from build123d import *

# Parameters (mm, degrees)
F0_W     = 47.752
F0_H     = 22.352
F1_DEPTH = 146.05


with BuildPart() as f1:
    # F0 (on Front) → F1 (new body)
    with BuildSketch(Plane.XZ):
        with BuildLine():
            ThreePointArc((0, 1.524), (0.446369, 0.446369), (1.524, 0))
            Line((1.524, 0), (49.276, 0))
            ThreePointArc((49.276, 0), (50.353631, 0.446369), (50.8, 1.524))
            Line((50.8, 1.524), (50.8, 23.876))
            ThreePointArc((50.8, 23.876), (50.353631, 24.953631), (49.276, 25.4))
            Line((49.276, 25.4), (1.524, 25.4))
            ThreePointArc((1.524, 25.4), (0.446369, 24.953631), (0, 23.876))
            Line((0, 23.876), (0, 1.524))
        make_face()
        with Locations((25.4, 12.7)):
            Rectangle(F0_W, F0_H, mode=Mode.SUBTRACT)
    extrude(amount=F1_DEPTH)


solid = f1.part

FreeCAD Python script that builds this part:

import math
import FreeCAD as App
import Part
import Sketcher

V = App.Vector
Q = App.Units.Quantity

doc = App.newDocument("Part")
body = doc.addObject("PartDesign::Body", "Body")

# Sketch on XZ plane
sketch1 = doc.addObject("Sketcher::SketchObject", "Sketch")
body.addObject(sketch1)
sketch1.AttachmentSupport = (doc.XZ_Plane, [""])
sketch1.MapMode = "FlatFace"
sketch1.addGeometry([
    Part.ArcOfCircle(Part.Circle(V(1.523999, 1.523999, 0), V(0, 0, 1), 1.523999), math.radians(179.999966), math.radians(270.000034)),  # 0
    Part.LineSegment(V(1.524, 0, 0), V(49.276, 0, 0)),  # 1
    Part.ArcOfCircle(Part.Circle(V(49.276001, 1.523999, 0), V(0, 0, 1), 1.523999), math.radians(-90.000034), math.radians(0.000034)),  # 2
    Part.LineSegment(V(50.8, 1.524, 0), V(50.8, 23.876, 0)),  # 3
    Part.ArcOfCircle(Part.Circle(V(49.276001, 23.876001, 0), V(0, 0, 1), 1.523999), math.radians(-0.000034), math.radians(90.000034)),  # 4
    Part.LineSegment(V(49.276, 25.4, 0), V(1.524, 25.4, 0)),  # 5
    Part.ArcOfCircle(Part.Circle(V(1.523999, 23.876001, 0), V(0, 0, 1), 1.523999), math.radians(89.999966), math.radians(180.000034)),  # 6
    Part.LineSegment(V(0, 23.876, 0), V(0, 1.524, 0)),  # 7
    Part.LineSegment(V(49.276, 1.524, 0), V(1.524, 1.524, 0)),  # 8
    Part.LineSegment(V(1.524, 1.524, 0), V(1.524, 23.876, 0)),  # 9
    Part.LineSegment(V(1.524, 23.876, 0), V(49.276, 23.876, 0)),  # 10
    Part.LineSegment(V(49.276, 23.876, 0), V(49.276, 1.524, 0)),  # 11
], False)
sketch1.addConstraint([
    Sketcher.Constraint("Tangent", 0, 2, 1, 1),
    Sketcher.Constraint("Tangent", 1, 2, 2, 1),
    Sketcher.Constraint("Tangent", 2, 2, 3, 1),
    Sketcher.Constraint("Tangent", 3, 2, 4, 1),
    Sketcher.Constraint("Tangent", 4, 2, 5, 1),
    Sketcher.Constraint("Tangent", 5, 2, 6, 1),
    Sketcher.Constraint("Tangent", 6, 2, 7, 1),
    Sketcher.Constraint("Tangent", 7, 2, 0, 1),
    Sketcher.Constraint("Coincident", 8, 2, 9, 1),
    Sketcher.Constraint("Coincident", 9, 2, 10, 1),
    Sketcher.Constraint("Coincident", 10, 2, 11, 1),
    Sketcher.Constraint("Coincident", 11, 2, 8, 1),
    Sketcher.Constraint("Horizontal", 1),
    Sketcher.Constraint("Vertical", 3),
    Sketcher.Constraint("Horizontal", 5),
    Sketcher.Constraint("Vertical", 7),
    Sketcher.Constraint("Horizontal", 8),
    Sketcher.Constraint("Vertical", 9),
    Sketcher.Constraint("Horizontal", 10),
    Sketcher.Constraint("Vertical", 11),
    Sketcher.Constraint("Coincident", 8, 2, 0, 3),
    Sketcher.Constraint("Coincident", 9, 2, 6, 3),
    Sketcher.Constraint("Coincident", 10, 2, 4, 3),
    Sketcher.Constraint("Equal", 0, 2),
    Sketcher.Constraint("PointOnObject", 0, 2, -1),
    Sketcher.Constraint("PointOnObject", 6, 2, -2),
    Sketcher.Constraint("Radius", 0, Q("0.06 in")),
    Sketcher.Constraint("DistanceX", -1, 1, 2, 2, Q("2 in")),
    Sketcher.Constraint("DistanceY", -1, 1, 4, 2, Q("1 in")),
])
pad1 = doc.addObject("PartDesign::Pad", "Pad")
body.addObject(pad1)
pad1.Profile = sketch1
pad1.Length = Q("5.75 in")

doc.recompute()
